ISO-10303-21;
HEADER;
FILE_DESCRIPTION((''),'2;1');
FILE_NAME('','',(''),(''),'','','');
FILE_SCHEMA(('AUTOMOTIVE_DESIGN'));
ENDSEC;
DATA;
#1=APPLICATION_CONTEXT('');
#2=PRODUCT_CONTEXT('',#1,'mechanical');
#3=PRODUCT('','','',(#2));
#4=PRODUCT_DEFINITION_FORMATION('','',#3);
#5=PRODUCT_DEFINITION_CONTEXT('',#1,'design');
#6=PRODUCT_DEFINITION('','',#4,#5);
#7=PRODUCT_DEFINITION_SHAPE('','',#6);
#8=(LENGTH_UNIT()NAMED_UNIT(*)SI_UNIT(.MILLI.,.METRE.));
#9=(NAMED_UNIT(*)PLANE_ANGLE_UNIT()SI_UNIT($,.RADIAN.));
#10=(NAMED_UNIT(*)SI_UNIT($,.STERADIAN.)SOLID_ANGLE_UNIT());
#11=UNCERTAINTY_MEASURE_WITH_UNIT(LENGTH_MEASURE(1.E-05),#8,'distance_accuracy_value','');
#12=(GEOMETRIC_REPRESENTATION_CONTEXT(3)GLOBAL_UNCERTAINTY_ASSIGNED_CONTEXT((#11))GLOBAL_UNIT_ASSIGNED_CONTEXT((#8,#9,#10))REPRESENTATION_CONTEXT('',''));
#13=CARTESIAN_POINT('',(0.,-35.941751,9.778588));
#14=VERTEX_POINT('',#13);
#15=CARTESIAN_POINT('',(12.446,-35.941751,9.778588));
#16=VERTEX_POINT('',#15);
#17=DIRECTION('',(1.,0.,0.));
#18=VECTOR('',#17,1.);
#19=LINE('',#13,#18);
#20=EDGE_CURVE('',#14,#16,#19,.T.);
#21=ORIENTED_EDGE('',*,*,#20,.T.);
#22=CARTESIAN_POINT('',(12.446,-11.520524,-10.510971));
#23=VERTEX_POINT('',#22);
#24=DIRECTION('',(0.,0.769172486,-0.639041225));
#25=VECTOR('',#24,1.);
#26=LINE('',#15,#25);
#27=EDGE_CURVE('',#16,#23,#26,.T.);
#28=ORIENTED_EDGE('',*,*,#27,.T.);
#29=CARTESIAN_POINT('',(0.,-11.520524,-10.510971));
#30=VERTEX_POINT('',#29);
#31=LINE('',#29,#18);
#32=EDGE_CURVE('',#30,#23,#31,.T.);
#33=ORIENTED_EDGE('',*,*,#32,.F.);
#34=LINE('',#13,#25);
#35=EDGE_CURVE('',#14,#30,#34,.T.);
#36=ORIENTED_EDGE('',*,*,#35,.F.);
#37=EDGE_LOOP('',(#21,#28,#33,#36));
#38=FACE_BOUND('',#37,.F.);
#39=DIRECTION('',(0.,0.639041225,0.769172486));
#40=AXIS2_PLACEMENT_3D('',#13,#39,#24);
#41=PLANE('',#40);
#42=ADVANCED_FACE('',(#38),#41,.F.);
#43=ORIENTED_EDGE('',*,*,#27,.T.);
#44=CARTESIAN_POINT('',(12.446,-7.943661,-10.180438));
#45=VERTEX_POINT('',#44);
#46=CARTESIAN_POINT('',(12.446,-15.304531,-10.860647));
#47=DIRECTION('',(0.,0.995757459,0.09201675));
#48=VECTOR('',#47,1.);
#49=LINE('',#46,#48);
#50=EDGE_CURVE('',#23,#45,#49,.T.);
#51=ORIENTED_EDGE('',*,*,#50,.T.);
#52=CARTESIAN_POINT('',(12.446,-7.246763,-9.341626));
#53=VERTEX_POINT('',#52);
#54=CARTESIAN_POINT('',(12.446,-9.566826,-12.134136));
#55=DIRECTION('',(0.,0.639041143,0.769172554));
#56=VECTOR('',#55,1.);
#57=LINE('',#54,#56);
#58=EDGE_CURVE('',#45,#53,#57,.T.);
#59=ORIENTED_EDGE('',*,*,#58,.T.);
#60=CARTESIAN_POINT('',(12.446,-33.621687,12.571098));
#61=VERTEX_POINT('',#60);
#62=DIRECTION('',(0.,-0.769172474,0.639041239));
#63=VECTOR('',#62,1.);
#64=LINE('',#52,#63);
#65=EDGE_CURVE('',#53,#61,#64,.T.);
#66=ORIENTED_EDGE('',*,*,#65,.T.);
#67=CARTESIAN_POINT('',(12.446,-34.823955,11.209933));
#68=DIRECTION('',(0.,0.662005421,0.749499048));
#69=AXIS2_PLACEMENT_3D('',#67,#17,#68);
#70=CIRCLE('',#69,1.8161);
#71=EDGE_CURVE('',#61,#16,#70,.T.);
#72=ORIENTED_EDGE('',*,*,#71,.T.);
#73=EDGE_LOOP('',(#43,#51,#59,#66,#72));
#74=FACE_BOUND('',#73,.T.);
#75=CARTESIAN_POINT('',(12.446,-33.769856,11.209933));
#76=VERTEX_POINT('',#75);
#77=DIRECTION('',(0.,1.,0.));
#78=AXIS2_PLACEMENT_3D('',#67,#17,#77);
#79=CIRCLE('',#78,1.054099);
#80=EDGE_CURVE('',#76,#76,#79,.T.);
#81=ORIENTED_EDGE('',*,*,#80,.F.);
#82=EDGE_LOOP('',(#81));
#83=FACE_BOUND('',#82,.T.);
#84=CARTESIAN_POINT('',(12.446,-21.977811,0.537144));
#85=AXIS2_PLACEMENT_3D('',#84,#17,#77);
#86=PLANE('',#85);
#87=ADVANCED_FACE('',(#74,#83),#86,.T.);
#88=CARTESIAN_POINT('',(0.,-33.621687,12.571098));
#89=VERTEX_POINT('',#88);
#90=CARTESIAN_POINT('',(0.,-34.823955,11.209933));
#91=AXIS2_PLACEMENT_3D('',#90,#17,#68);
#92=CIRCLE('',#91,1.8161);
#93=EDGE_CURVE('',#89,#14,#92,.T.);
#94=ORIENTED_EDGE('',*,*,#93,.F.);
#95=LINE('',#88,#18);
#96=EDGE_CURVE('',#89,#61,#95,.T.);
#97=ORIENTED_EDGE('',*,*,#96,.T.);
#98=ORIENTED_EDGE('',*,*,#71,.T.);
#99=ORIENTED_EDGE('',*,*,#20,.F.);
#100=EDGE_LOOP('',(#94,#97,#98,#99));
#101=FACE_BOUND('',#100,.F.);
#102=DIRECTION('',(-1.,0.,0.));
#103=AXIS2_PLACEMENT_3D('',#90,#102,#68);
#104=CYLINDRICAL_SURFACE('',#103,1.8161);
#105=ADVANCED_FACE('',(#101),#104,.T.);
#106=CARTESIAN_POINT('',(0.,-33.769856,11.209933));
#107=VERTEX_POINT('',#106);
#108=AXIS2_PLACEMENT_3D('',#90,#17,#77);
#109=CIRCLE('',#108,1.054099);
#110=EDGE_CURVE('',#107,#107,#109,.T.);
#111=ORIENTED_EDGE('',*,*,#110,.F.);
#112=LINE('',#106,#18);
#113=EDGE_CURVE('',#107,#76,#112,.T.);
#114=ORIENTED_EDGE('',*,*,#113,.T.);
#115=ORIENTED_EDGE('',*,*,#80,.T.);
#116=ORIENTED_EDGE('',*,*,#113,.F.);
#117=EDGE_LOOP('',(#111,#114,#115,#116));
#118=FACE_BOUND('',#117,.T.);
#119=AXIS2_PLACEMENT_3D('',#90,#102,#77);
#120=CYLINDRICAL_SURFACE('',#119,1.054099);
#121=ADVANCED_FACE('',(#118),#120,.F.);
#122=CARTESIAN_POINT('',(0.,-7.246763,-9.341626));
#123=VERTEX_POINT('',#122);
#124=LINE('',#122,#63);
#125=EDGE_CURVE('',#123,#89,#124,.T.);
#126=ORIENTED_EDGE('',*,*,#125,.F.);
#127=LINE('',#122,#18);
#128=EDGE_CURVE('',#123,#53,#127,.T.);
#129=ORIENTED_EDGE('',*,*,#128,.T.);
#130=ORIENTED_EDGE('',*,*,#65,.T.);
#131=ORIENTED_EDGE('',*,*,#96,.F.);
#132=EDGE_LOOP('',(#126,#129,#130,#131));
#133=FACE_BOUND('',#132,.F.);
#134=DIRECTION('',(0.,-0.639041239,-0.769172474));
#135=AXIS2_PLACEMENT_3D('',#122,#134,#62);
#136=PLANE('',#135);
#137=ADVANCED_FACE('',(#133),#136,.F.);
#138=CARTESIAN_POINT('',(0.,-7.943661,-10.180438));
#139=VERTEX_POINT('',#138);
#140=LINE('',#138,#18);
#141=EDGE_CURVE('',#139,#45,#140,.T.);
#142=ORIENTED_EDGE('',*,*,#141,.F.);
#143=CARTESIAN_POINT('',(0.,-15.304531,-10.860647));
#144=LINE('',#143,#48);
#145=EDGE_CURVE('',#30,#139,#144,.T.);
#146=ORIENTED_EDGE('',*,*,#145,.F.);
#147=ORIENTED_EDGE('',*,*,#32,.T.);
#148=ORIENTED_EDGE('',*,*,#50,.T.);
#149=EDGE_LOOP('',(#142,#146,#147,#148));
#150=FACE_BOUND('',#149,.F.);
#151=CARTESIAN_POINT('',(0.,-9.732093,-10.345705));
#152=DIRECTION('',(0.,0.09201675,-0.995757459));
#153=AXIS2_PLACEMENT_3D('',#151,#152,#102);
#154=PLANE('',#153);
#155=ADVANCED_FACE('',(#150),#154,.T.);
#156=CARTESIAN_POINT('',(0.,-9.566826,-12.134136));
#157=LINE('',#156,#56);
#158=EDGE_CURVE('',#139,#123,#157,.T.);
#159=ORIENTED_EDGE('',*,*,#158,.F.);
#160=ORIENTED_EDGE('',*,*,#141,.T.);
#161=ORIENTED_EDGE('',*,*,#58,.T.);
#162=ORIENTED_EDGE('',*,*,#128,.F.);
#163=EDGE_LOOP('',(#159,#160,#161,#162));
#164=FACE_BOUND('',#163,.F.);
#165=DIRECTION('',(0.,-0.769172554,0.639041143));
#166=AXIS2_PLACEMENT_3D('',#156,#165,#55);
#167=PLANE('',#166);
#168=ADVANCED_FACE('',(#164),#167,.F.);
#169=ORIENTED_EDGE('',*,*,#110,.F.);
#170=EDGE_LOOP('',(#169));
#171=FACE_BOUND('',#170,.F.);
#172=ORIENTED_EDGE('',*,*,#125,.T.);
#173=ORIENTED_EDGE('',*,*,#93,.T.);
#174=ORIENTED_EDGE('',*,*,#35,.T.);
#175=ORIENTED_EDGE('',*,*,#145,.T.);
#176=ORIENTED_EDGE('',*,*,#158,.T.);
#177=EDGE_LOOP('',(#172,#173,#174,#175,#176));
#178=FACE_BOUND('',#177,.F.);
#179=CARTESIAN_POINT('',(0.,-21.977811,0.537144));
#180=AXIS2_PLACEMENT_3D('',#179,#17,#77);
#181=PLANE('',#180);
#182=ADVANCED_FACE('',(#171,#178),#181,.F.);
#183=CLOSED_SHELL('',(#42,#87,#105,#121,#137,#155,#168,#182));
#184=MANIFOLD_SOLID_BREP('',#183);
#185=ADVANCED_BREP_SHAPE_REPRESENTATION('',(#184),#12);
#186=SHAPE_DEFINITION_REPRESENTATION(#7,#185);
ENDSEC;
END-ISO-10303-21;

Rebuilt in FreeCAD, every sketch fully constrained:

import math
import FreeCAD as App
import Part
import Sketcher
Q = App.Units.Quantity


def edges_at(feature, points):
    """Names of the edges that pass closest to the given points."""
    edges = feature.Shape.Edges
    near = lambda p: min(range(len(edges)), key=lambda i: edges[i].distToShape(Part.Vertex(*p))[0])
    return sorted({f"Edge{near(p) + 1}" for p in points})

doc = App.newDocument("Part")
params = doc.addObject("Spreadsheet::Sheet", "Params")
for row, (alias, value) in enumerate([
    ("sketch1_diameter", "0.0829999 in"),
    ("sketch1_length", "1.35 in"),
    ("pad1_length", "0.49 in"),
    ("chamfer_size", "0.1 in"),
], start=1):
    params.set(f"A{row}", alias)
    params.set(f"B{row}", "=" + value)
    params.setAlias(f"B{row}", alias)

body = doc.addObject("PartDesign::Body", "Body")

# Sketch on YZ plane
sketch1 = body.newObject("Sketcher::SketchObject", "Sketch")
sketch1.AttachmentSupport = (doc.getObject("YZ_Plane"), [""])
sketch1.MapMode = "FlatFace"
sketch1.addGeometry(Part.LineSegment(App.Vector(-35.9, 9.8, 0), App.Vector(-9.6, -12.1, 0)), False)
sketch1.addGeometry(Part.LineSegment(App.Vector(-9.6, -12.1, 0), App.Vector(-7.2, -9.3, 0)), False)
sketch1.addGeometry(Part.LineSegment(App.Vector(-7.2, -9.3, 0), App.Vector(-33.6, 12.6, 0)), False)
sketch1.addGeometry(Part.ArcOfCircle(Part.Circle(App.Vector(-34.8, 11.2, 0), App.Vector(0, 0, 1), 1.8), math.radians(49), math.radians(232)), False)
sketch1.addGeometry(Part.Circle(App.Vector(-34.8, 11.2, 0), App.Vector(0, 0, 1), 1.1), False)
sketch1.addConstraint(Sketcher.Constraint("Coincident", 0, 2, 1, 1))
sketch1.addConstraint(Sketcher.Constraint("Coincident", 1, 2, 2, 1))
sketch1.addConstraint(Sketcher.Constraint("Coincident", 2, 2, 3, 1))
sketch1.addConstraint(Sketcher.Constraint("Coincident", 3, 2, 0, 1))
sketch1.addConstraint(Sketcher.Constraint("Coincident", 4, 3, 3, 3))
sketch1.addConstraint(Sketcher.Constraint("Perpendicular", 0, 1))
sketch1.addConstraint(Sketcher.Constraint("Perpendicular", 1, 2))
sketch1.addConstraint(Sketcher.Constraint("Equal", 0, 2))
sketch1.addConstraint(Sketcher.Constraint("Diameter", 4, Q("0.0829999 in")))
sketch1.addConstraint(Sketcher.Constraint("Radius", 3, Q("0.0715 in")))
sketch1.addConstraint(Sketcher.Constraint("Distance", 0, Q("1.35 in")))
sketch1.addConstraint(Sketcher.Constraint("DistanceX", 3, 2, -1, 1, Q("35.941751 mm")))
sketch1.addConstraint(Sketcher.Constraint("DistanceX", 3, 3, 0, 2, Q("25.257129 mm")))
sketch1.addConstraint(Sketcher.Constraint("DistanceY", 0, 2, 3, 3, Q("23.344069 mm")))
sketch1.addConstraint(Sketcher.Constraint("DistanceY", -1, 1, 3, 3, Q("11.209933 mm")))
sketch1.setExpression("Constraints[8]", "Params.sketch1_diameter")
sketch1.setExpression("Constraints[10]", "Params.sketch1_length")
pad1 = body.newObject("PartDesign::Pad", "Pad")
pad1.Profile = sketch1
pad1.setExpression("Length", "Params.pad1_length")
doc.recompute()

chamfer = body.newObject("PartDesign::Chamfer", "Chamfer")
chamfer.Base = (pad1, edges_at(pad1, [(6.223, -9.567, -12.134)]))
chamfer.setExpression("Size", "Params.chamfer_size")

doc.recompute()
